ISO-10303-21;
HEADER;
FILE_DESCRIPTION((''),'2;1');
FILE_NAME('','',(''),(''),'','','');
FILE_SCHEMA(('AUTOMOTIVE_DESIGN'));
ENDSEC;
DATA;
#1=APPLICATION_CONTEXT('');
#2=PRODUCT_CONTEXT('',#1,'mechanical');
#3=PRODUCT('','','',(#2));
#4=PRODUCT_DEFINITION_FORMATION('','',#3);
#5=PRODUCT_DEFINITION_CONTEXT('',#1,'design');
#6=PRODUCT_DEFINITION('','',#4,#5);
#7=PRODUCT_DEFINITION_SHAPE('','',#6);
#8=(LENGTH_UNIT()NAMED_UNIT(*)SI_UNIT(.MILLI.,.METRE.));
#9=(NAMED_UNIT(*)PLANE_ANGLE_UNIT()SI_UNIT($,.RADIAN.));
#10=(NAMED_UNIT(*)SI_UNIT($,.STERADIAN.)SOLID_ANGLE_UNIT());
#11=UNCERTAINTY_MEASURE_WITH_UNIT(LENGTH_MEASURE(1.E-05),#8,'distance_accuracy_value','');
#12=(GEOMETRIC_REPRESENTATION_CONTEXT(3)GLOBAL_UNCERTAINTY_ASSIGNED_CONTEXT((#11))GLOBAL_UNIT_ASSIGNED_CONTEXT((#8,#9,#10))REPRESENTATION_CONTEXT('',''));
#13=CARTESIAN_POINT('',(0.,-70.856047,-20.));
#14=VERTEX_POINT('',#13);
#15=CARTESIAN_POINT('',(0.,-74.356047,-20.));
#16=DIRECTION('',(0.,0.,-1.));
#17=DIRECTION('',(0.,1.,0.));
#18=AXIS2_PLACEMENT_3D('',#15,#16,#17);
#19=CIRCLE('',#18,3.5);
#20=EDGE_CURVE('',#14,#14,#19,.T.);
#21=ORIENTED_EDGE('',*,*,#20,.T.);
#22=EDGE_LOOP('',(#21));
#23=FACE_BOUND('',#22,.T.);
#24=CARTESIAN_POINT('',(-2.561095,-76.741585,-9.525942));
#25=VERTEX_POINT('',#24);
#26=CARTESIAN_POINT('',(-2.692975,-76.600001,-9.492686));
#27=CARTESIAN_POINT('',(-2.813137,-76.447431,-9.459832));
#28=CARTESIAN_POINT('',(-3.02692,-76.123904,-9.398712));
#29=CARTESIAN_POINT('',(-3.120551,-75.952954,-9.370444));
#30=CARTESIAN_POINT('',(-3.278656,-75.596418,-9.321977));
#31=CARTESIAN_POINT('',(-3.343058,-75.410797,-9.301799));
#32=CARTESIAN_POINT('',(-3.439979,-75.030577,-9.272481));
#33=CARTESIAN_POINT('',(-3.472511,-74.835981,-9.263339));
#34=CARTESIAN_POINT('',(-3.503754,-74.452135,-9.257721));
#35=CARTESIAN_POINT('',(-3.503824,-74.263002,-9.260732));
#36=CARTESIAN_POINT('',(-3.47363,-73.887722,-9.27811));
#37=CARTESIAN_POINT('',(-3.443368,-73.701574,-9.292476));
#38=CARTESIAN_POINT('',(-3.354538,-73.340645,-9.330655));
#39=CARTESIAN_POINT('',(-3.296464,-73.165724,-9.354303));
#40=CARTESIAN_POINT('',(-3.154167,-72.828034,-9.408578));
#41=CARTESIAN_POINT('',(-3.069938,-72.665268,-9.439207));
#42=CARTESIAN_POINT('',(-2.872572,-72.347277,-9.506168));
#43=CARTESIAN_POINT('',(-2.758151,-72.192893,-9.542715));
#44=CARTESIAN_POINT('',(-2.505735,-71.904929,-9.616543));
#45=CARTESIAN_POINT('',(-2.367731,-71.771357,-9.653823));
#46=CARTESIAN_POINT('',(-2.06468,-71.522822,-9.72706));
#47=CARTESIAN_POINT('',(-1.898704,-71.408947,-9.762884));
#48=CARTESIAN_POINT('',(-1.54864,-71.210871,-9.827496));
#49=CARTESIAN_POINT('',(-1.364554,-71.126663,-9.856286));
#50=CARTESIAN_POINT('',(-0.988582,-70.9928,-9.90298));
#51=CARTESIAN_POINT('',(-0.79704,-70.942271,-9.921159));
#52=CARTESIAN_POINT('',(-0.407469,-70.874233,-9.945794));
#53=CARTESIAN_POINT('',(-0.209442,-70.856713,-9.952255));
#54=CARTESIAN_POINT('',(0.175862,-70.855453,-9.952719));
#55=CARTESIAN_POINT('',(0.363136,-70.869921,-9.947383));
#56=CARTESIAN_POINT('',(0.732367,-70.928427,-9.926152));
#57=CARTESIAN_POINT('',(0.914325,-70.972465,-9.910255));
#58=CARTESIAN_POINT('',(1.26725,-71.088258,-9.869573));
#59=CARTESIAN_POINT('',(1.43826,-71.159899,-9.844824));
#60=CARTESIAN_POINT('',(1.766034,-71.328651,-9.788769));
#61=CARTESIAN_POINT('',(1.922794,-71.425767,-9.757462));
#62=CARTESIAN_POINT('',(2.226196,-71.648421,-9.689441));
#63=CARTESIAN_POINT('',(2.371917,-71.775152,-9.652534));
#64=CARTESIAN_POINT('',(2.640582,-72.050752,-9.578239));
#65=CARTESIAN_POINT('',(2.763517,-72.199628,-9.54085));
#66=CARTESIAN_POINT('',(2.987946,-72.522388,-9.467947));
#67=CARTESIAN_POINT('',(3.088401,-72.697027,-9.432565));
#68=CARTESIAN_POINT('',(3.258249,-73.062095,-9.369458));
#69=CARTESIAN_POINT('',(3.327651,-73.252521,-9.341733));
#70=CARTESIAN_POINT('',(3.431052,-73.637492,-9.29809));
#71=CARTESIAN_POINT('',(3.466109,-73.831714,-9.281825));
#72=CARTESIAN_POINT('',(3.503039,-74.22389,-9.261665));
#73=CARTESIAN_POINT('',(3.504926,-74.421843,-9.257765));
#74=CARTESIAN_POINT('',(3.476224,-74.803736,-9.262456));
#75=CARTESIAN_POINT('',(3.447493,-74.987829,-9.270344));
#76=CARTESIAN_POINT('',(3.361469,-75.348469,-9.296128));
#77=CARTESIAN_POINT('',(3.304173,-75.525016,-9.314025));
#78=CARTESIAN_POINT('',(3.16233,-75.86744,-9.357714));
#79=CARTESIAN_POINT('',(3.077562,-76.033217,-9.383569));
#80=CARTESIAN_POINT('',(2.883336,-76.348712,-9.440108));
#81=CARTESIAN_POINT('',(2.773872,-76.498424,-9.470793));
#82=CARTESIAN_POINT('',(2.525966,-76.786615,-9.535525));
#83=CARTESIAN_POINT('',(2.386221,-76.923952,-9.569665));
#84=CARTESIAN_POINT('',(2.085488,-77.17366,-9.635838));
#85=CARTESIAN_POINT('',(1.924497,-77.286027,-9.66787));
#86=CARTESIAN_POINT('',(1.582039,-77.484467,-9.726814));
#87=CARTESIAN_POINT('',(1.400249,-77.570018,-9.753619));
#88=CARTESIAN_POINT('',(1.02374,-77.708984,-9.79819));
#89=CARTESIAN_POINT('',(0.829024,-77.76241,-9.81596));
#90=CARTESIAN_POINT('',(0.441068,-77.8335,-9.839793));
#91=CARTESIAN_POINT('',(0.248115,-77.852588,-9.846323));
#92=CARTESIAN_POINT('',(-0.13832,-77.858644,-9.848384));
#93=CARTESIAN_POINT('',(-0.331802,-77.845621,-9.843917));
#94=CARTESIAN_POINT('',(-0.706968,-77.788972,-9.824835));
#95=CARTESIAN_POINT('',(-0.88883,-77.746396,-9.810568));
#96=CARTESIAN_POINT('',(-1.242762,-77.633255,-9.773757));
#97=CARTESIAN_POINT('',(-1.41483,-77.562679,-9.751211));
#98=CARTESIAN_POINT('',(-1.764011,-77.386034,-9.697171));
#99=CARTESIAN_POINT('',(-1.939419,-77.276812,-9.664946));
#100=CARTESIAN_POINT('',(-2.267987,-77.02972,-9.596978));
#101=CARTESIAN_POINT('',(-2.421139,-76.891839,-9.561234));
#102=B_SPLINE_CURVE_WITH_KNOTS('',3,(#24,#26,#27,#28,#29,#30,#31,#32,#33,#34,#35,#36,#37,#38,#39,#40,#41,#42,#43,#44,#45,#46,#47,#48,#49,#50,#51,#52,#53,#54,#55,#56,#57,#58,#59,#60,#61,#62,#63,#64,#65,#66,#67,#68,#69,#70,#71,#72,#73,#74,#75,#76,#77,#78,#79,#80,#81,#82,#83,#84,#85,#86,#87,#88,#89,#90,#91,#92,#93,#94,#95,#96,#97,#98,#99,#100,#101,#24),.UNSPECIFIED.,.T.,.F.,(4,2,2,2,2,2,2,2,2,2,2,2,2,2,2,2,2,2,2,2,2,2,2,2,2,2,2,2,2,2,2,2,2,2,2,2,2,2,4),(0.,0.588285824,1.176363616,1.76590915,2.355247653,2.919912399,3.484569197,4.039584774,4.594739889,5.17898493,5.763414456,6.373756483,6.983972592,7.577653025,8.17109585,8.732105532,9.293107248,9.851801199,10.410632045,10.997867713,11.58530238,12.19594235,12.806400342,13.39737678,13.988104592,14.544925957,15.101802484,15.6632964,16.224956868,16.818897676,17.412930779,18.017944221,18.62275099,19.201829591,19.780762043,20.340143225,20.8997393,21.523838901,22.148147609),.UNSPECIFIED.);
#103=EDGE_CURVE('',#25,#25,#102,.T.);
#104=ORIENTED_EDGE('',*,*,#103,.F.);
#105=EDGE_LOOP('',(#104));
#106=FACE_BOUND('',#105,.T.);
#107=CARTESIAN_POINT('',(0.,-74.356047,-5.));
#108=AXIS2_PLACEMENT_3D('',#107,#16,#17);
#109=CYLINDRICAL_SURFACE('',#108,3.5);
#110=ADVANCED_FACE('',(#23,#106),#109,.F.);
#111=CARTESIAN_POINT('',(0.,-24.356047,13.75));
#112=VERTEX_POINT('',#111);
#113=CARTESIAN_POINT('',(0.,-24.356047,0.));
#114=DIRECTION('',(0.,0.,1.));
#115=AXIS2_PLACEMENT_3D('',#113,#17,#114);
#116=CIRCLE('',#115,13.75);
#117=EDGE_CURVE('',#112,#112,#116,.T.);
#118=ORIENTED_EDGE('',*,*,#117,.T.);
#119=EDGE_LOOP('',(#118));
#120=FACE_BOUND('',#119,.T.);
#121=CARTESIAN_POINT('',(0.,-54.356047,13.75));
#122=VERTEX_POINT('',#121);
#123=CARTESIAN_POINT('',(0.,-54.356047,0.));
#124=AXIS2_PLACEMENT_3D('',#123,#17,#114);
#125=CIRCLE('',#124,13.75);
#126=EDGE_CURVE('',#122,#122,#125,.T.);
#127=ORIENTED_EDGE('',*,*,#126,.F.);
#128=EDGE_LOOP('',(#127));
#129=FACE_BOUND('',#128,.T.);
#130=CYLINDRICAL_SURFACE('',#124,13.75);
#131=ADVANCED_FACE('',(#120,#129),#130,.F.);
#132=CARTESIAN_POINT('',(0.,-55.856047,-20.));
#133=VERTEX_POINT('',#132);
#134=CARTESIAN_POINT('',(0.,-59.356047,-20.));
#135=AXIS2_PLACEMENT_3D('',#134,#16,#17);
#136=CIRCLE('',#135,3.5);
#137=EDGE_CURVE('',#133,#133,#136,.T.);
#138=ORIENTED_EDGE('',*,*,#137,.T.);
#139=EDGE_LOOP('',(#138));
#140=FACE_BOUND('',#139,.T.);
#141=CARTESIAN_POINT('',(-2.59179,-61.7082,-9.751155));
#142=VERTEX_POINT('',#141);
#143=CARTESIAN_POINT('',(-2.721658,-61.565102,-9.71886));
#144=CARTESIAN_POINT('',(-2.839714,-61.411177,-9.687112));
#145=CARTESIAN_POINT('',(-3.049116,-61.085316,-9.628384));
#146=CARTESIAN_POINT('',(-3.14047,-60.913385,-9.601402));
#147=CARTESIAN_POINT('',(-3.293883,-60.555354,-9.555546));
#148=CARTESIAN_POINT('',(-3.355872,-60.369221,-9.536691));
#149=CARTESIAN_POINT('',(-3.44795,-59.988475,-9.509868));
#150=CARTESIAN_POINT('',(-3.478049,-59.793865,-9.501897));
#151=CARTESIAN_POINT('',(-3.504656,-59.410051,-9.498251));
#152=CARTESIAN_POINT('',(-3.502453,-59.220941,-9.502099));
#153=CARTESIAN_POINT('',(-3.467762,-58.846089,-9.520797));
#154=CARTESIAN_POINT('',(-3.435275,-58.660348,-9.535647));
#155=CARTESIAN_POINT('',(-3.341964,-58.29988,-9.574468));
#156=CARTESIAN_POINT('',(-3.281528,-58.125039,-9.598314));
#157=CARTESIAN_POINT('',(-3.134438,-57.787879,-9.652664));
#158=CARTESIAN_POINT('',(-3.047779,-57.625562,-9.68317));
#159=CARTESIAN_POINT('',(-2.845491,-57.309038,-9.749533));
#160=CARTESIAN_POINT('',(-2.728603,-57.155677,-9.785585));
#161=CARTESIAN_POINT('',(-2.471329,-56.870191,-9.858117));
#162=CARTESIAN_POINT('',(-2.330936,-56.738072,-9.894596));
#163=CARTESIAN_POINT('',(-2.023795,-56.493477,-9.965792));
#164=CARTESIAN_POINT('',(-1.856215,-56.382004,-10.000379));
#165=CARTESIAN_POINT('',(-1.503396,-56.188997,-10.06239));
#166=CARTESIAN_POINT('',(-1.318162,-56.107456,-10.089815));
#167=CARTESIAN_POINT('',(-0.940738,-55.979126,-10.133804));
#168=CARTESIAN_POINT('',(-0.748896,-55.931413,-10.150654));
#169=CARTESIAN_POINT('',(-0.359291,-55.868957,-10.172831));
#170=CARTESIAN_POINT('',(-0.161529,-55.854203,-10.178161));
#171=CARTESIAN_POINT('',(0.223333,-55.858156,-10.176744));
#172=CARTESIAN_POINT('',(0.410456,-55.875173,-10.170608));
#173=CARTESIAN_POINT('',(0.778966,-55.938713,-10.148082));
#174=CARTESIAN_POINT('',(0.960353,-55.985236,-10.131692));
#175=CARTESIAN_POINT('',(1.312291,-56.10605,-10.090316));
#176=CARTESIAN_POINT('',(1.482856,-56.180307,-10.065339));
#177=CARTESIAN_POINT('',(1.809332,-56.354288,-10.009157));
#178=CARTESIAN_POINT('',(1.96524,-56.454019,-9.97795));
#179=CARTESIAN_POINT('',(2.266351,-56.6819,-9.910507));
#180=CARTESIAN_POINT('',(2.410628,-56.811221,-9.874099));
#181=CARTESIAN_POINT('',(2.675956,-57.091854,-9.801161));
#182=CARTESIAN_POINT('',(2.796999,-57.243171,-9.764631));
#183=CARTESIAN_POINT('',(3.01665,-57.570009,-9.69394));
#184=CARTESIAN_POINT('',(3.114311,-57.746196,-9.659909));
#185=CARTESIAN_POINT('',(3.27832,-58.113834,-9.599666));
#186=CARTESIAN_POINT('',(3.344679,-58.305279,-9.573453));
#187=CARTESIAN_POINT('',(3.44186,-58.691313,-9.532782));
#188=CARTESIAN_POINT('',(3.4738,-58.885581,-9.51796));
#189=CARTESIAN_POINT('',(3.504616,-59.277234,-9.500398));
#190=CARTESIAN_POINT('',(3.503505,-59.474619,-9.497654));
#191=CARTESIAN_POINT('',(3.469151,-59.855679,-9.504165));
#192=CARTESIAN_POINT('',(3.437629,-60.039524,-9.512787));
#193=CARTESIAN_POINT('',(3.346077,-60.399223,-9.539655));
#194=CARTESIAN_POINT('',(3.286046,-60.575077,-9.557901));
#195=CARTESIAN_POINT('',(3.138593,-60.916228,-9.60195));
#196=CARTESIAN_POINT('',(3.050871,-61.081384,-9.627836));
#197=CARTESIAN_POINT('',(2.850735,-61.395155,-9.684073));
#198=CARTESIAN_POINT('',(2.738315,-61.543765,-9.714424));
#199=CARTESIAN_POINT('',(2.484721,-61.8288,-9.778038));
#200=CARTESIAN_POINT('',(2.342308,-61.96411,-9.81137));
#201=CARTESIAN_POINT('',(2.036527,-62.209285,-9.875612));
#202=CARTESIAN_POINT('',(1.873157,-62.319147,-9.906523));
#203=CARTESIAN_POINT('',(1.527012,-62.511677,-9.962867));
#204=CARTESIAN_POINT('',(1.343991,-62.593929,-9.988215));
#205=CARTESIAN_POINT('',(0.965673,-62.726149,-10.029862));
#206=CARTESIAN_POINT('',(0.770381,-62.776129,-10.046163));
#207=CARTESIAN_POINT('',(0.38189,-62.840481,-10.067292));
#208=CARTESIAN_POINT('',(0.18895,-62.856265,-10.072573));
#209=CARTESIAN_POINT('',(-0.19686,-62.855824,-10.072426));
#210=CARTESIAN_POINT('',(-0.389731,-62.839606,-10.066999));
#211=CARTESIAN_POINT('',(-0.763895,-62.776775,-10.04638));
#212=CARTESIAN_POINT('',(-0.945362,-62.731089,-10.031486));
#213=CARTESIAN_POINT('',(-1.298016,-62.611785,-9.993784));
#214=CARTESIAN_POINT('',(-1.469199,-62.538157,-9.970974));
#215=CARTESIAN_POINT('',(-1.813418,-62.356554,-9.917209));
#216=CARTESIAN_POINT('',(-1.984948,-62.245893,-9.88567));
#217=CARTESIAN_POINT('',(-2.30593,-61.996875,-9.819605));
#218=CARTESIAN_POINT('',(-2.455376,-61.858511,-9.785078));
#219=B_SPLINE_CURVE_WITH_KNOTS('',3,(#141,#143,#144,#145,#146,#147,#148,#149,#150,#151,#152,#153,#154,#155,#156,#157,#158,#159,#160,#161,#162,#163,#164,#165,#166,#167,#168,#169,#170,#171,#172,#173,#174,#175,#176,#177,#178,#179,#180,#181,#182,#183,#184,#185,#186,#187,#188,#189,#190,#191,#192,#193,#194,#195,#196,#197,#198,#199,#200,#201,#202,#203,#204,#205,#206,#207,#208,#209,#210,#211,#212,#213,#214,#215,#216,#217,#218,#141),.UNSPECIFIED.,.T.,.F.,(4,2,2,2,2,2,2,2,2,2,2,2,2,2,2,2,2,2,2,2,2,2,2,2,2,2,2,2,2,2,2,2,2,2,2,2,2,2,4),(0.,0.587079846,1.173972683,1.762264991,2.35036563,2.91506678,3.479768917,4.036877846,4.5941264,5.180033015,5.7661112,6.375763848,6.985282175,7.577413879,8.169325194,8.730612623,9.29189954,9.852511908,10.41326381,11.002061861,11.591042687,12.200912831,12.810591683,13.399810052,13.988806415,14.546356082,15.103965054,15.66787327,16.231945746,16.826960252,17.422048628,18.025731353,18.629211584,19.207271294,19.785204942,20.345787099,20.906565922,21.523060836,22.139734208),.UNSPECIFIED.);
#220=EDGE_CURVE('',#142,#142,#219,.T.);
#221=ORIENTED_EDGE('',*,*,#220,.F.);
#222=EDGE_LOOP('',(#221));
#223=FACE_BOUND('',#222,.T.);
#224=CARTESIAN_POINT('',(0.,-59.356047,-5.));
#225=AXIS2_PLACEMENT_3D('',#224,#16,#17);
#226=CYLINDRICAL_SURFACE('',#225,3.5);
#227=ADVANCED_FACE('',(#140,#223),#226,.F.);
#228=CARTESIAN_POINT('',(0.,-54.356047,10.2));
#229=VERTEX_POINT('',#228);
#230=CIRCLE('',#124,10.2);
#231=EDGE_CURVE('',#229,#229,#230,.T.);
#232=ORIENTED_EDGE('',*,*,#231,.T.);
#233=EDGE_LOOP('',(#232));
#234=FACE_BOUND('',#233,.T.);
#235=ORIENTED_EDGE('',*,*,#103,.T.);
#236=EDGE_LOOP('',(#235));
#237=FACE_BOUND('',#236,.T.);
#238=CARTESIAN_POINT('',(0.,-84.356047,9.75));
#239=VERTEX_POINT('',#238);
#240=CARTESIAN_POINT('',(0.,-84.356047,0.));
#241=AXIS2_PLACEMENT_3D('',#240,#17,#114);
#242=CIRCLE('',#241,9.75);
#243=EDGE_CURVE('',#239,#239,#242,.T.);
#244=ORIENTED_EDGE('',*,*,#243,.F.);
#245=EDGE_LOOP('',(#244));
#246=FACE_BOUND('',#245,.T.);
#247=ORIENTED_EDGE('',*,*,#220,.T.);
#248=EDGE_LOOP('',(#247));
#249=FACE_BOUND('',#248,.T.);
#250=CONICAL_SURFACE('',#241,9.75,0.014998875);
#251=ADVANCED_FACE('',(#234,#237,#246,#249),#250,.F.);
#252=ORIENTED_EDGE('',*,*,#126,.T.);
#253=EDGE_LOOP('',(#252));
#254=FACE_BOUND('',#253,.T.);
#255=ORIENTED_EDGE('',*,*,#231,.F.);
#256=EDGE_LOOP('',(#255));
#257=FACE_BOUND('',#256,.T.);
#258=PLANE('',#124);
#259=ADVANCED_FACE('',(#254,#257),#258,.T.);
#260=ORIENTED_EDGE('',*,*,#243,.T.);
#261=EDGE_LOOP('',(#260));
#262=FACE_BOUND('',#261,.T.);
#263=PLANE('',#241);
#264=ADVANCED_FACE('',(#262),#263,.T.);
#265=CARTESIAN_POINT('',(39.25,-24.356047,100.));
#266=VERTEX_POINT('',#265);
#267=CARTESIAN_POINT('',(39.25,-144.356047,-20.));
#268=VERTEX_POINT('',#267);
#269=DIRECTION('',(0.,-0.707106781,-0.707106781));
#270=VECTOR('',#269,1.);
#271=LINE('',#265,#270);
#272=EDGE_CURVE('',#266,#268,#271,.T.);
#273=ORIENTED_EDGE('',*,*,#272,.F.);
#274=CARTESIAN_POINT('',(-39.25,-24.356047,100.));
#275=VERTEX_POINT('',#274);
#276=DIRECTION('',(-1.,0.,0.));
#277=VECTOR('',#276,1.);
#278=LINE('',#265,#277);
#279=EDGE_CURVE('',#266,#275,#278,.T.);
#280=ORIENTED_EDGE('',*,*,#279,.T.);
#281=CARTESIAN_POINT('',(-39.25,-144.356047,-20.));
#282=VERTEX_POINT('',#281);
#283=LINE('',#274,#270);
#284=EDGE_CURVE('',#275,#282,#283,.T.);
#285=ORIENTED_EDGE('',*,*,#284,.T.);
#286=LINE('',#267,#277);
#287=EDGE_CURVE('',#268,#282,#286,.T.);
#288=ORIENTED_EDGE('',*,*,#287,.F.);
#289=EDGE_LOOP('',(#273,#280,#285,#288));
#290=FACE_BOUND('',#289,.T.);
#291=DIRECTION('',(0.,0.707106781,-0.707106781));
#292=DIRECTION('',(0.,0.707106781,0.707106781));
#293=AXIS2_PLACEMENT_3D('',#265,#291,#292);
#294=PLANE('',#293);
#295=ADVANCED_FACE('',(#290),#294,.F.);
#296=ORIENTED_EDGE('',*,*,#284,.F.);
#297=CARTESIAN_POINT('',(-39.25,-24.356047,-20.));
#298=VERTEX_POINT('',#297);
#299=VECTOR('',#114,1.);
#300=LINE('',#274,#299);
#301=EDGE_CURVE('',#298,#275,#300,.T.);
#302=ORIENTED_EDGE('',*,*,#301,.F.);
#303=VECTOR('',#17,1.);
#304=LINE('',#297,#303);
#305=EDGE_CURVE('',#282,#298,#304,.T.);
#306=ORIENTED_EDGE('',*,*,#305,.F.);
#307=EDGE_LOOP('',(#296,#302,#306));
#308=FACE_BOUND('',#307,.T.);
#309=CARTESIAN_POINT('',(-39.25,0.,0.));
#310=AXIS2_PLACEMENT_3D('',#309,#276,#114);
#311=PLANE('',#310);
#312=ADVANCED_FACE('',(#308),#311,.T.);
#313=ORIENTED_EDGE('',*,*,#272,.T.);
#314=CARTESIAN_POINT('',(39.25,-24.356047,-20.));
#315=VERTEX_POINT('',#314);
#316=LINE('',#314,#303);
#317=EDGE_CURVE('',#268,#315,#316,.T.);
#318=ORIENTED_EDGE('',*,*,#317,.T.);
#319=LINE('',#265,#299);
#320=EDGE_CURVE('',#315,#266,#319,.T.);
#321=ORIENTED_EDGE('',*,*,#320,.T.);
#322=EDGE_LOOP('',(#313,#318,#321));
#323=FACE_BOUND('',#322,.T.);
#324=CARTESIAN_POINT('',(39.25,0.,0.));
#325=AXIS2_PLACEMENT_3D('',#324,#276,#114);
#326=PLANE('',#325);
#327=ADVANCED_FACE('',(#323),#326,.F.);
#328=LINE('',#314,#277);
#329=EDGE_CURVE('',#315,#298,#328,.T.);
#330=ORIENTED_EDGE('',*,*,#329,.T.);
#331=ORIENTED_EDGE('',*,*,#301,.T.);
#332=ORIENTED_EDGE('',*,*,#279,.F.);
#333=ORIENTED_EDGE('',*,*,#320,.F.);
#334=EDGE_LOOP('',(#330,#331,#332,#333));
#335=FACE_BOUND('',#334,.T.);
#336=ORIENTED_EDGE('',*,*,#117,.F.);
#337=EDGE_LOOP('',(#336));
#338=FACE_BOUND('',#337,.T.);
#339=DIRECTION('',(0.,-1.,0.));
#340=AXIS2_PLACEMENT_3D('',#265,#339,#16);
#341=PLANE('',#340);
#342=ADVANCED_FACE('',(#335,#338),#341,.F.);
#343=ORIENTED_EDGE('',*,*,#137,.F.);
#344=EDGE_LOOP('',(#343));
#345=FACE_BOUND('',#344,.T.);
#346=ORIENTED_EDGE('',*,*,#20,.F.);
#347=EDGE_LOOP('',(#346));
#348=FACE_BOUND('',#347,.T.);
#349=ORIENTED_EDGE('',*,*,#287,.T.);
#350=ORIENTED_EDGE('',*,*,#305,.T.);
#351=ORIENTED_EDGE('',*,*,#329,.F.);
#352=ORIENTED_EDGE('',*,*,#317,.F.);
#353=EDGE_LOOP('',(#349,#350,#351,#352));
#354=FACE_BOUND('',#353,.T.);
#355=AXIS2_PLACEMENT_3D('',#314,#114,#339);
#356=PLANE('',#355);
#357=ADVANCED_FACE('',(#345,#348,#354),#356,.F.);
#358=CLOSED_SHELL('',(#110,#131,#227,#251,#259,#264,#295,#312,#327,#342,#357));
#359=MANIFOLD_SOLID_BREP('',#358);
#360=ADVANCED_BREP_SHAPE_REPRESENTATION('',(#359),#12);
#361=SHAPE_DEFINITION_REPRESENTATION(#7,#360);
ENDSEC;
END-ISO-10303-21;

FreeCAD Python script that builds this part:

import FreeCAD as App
import Part
import Sketcher
from FreeCAD import Vector
Q = App.Units.Quantity


def add_polygon(sketch, points):
    """Adds a closed chain of lines whose ends are joined by coincident constraints."""
    first, n = sketch.GeometryCount, len(points)
    for a, b in zip(points, points[1:] + points[:1]):
        sketch.addGeometry(Part.LineSegment(App.Vector(*a, 0), App.Vector(*b, 0)), False)
    for i in range(n):
        sketch.addConstraint(Sketcher.Constraint("Coincident", first + i, 2, first + (i + 1) % n, 1))

doc = App.newDocument("Part")
body = doc.addObject("PartDesign::Body", "Body")

sketch1 = doc.addObject("Sketcher::SketchObject", "Sketch")
body.addObject(sketch1)
sketch1.AttachmentSupport = (doc.YZ_Plane, [""])
sketch1.MapMode = "FlatFace"
add_polygon(sketch1, [(-24, 100), (-144, -20), (-24, -20)])
sketch1.addConstraint([
    Sketcher.Constraint("Horizontal", 1),
    Sketcher.Constraint("Vertical", 2),
    Sketcher.Constraint("Equal", 1, 2),
    Sketcher.Constraint("DistanceX", 1, 1, 1, 2, Q("120 mm")),
    Sketcher.Constraint("DistanceY", 0, 2, -1, 1, Q("20 mm")),
    Sketcher.Constraint("DistanceX", 0, 2, -1, 1, Q("144.356047 mm")),
])
pad1 = doc.addObject("PartDesign::Pad", "Pad")
body.addObject(pad1)
pad1.Profile = sketch1
pad1.Length = 78.5
pad1.Midplane = True

sketch2 = doc.addObject("Sketcher::SketchObject", "Sketch001")
body.addObject(sketch2)
sketch2.AttachmentSupport = (doc.XZ_Plane, [""])
sketch2.MapMode = "FlatFace"
sketch2.AttachmentOffset = App.Placement(Vector(0, 0, 24.356047), App.Rotation())
sketch2.addGeometry(Part.Circle(Vector(0, 0, 0), Vector(0, 0, 1), 14), False)
sketch2.addConstraint([
    Sketcher.Constraint("Coincident", 0, 3, -1, 1),
    Sketcher.Constraint("Diameter", 0, Q("27.5 mm")),
])
pocket1 = doc.addObject("PartDesign::Pocket", "Pocket")
body.addObject(pocket1)
pocket1.Profile = sketch2
pocket1.Length = 30
pocket1.Reversed = True

sketch3 = doc.addObject("Sketcher::SketchObject", "Sketch002")
body.addObject(sketch3)
sketch3.AttachmentSupport = (doc.XZ_Plane, [""])
sketch3.MapMode = "FlatFace"
sketch3.AttachmentOffset = App.Placement(Vector(0, 0, 84.356047), App.Rotation())
sketch3.addGeometry(Part.Circle(Vector(0, 0, 0), Vector(0, 0, 1), 10), False)
sketch3.addConstraint([
    Sketcher.Constraint("Coincident", 0, 3, -1, 1),
    Sketcher.Constraint("Diameter", 0, Q("19.5 mm")),
])

sketch4 = doc.addObject("Sketcher::SketchObject", "Sketch003")
body.addObject(sketch4)
sketch4.AttachmentSupport = (doc.XZ_Plane, [""])
sketch4.MapMode = "FlatFace"
sketch4.AttachmentOffset = App.Placement(Vector(0, 0, 54.356047), App.Rotation())
sketch4.addGeometry(Part.Circle(Vector(0, 0, 0), Vector(0, 0, 1), 10), False)
sketch4.addConstraint([
    Sketcher.Constraint("Coincident", 0, 3, -1, 1),
    Sketcher.Constraint("Diameter", 0, Q("20.4 mm")),
])

subtractiveloft = doc.addObject("PartDesign::SubtractiveLoft", "SubtractiveLoft")
body.addObject(subtractiveloft)
subtractiveloft.Profile = sketch3
subtractiveloft.Sections = [sketch4]

sketch5 = doc.addObject("Sketcher::SketchObject", "Sketch004")
body.addObject(sketch5)
sketch5.AttachmentSupport = (doc.XY_Plane, [""])
sketch5.MapMode = "FlatFace"
sketch5.AttachmentOffset = App.Placement(Vector(0, 0, -20), App.Rotation())
sketch5.addGeometry([
    Part.Circle(Vector(0, -59.4, 0), Vector(0, 0, 1), 3.5),
    Part.Circle(Vector(0, -74.4, 0), Vector(0, 0, 1), 3.5),
], False)
sketch5.addConstraint([
    Sketcher.Constraint("Equal", 0, 1),
    Sketcher.Constraint("PointOnObject", 0, 3, -2),
    Sketcher.Constraint("PointOnObject", 1, 3, -2),
    Sketcher.Constraint("Diameter", 0, Q("7 mm")),
    Sketcher.Constraint("DistanceY", 1, 3, 0, 3, Q("15 mm")),
    Sketcher.Constraint("DistanceY", 0, 3, -1, 1, Q("59.356047 mm")),
])
pocket2 = doc.addObject("PartDesign::Pocket", "Pocket001")
body.addObject(pocket2)
pocket2.Profile = sketch5
pocket2.Length = 15
pocket2.Reversed = True

doc.recompute()
